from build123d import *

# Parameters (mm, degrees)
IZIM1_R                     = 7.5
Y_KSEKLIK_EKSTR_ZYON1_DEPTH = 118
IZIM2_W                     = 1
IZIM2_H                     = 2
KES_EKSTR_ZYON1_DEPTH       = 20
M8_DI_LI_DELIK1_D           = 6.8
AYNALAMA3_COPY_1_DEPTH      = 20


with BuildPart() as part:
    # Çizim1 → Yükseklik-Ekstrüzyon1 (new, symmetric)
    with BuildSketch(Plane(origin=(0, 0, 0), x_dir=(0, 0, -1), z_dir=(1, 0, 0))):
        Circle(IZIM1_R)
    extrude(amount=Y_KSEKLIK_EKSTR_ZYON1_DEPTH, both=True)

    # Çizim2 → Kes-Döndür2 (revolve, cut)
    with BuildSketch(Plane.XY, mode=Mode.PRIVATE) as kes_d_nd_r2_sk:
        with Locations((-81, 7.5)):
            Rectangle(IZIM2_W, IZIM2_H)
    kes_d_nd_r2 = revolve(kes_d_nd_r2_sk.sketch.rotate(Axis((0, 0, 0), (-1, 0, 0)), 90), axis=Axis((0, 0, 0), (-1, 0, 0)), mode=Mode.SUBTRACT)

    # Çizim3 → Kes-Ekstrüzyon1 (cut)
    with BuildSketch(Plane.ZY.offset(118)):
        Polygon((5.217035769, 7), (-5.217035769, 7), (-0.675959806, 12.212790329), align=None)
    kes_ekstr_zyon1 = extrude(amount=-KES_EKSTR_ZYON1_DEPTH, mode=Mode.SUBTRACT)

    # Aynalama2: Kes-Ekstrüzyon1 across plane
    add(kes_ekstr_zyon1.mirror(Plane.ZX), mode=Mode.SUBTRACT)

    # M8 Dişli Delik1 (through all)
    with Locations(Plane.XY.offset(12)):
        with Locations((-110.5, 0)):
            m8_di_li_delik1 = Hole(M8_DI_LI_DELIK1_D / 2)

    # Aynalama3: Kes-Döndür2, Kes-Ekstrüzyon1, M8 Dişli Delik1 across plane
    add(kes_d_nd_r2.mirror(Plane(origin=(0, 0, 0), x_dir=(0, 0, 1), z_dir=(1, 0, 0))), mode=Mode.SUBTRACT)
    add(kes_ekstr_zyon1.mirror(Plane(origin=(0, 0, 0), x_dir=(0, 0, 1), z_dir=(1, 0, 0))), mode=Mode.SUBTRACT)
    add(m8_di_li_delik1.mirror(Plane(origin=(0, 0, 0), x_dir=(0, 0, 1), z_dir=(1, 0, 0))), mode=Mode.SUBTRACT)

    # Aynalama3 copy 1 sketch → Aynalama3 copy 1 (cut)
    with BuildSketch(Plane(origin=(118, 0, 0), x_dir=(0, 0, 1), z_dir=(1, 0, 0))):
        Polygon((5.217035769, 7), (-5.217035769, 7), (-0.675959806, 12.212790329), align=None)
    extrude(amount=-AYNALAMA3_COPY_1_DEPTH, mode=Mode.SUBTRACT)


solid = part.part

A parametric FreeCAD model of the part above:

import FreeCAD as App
import Part
import Sketcher

V = App.Vector
Q = App.Units.Quantity

doc = App.newDocument("Part")
body = doc.addObject("PartDesign::Body", "Body")

# Sketch on YZ plane
sketch1 = body.newObject("Sketcher::SketchObject", "Sketch")
sketch1.AttachmentSupport = (doc.getObject("YZ_Plane"), [""])
sketch1.MapMode = "FlatFace"
sketch1.addGeometry(Part.Circle(V(0, 0, 0), V(0, 0, 1), 8), False)
sketch1.addConstraint([
    Sketcher.Constraint("Coincident", 0, 3, -1, 1),
    Sketcher.Constraint("Diameter", 0, Q("15 mm")),
])
pad1 = body.newObject("PartDesign::Pad", "Pad")
pad1.Profile = sketch1
pad1.Length = 236
pad1.Midplane = True

# Sketch on XY plane
sketch2 = body.newObject("Sketcher::SketchObject", "Sketch001")
sketch2.AttachmentSupport = (doc.getObject("XY_Plane"), [""])
sketch2.MapMode = "FlatFace"
sketch2.addGeometry([
    Part.LineSegment(V(-81.5, 8.5, 0), V(-81.5, 6.5, 0)),
    Part.LineSegment(V(-81.5, 6.5, 0), V(-80.5, 6.5, 0)),
    Part.LineSegment(V(-80.5, 6.5, 0), V(-80.5, 8.5, 0)),
    Part.LineSegment(V(-80.5, 8.5, 0), V(-81.5, 8.5, 0)),
], False)
sketch2.addConstraint([
    Sketcher.Constraint("Coincident", 0, 2, 1, 1),
    Sketcher.Constraint("Coincident", 1, 2, 2, 1),
    Sketcher.Constraint("Coincident", 2, 2, 3, 1),
    Sketcher.Constraint("Coincident", 3, 2, 0, 1),
    Sketcher.Constraint("Vertical", 0),
    Sketcher.Constraint("Horizontal", 1),
    Sketcher.Constraint("Vertical", 2),
    Sketcher.Constraint("Horizontal", 3),
    Sketcher.Constraint("DistanceX", 1, 1, 1, 2, Q("1 mm")),
    Sketcher.Constraint("DistanceY", 0, 2, 0, 1, Q("2 mm")),
    Sketcher.Constraint("DistanceX", 0, 2, -1, 1, Q("81.5 mm")),
    Sketcher.Constraint("DistanceY", -1, 1, 0, 2, Q("6.5 mm")),
])
groove = body.newObject("PartDesign::Groove", "Groove")
groove.Profile = sketch2
groove.ReferenceAxis = (sketch2, ["H_Axis"])
groove.Angle = 360

# Sketch on YZ plane
sketch3 = body.newObject("Sketcher::SketchObject", "Sketch002")
sketch3.AttachmentSupport = (doc.getObject("YZ_Plane"), [""])
sketch3.MapMode = "FlatFace"
sketch3.AttachmentOffset = App.Placement(V(0, 0, -118), App.Rotation())
sketch3.addGeometry([
    Part.LineSegment(V(7, -5, 0), V(7, 5, 0)),
    Part.LineSegment(V(7, 5, 0), V(12, -1, 0)),
    Part.LineSegment(V(12, -1, 0), V(7, -5, 0)),
], False)
sketch3.addConstraint([
    Sketcher.Constraint("Coincident", 0, 2, 1, 1),
    Sketcher.Constraint("Coincident", 1, 2, 2, 1),
    Sketcher.Constraint("Coincident", 2, 2, 0, 1),
    Sketcher.Constraint("Vertical", 0),
    Sketcher.Constraint("DistanceX", -1, 1, 0, 2, Q("7 mm")),
    Sketcher.Constraint("DistanceY", 0, 1, 0, 2, Q("10.434072 mm")),
    Sketcher.Constraint("Distance", 2, Q("6.913361 mm")),
    Sketcher.Constraint("DistanceX", -1, 1, 1, 2, Q("12.21279 mm")),
    Sketcher.Constraint("DistanceY", 1, 2, -1, 1, Q("0.67596 mm")),
])
pocket1 = body.newObject("PartDesign::Pocket", "Pocket")
pocket1.Profile = sketch3
pocket1.Length = 20
pocket1.Reversed = True
doc.recompute()

mirrored = body.newObject("PartDesign::Mirrored", "Mirrored")
mirrored.Originals = [pocket1]
mirrored.MirrorPlane = (doc.getObject("XZ_Plane"), [""])
body.Tip = mirrored

# Sketch on XY plane
sketch4 = body.newObject("Sketcher::SketchObject", "Sketch003")
sketch4.AttachmentSupport = (doc.getObject("XY_Plane"), [""])
sketch4.MapMode = "FlatFace"
sketch4.AttachmentOffset = App.Placement(V(0, 0, 12), App.Rotation())
sketch4.addGeometry(Part.Circle(V(-110.5, 0, 0), V(0, 0, 1), 3.4), False)
sketch4.addConstraint([
    Sketcher.Constraint("PointOnObject", 0, 3, -1),
    Sketcher.Constraint("Diameter", 0, Q("6.8 mm")),
    Sketcher.Constraint("DistanceX", 0, 3, -1, 1, Q("110.5 mm")),
])
doc.recompute()
hole = body.newObject("PartDesign::Hole", "Hole")
hole.Profile = sketch4
hole.ThreadType = "None"
hole.Diameter = 6.8
hole.DepthType = "ThroughAll"
doc.recompute()

mirrored2 = body.newObject("PartDesign::Mirrored", "Mirrored001")
mirrored2.Originals = [groove, pocket1, hole]
mirrored2.MirrorPlane = (doc.getObject("YZ_Plane"), [""])
body.Tip = mirrored2

# Sketch on YZ plane
sketch5 = body.newObject("Sketcher::SketchObject", "Sketch004")
sketch5.AttachmentSupport = (doc.getObject("YZ_Plane"), [""])
sketch5.MapMode = "FlatFace"
sketch5.AttachmentOffset = App.Placement(V(0, 0, 118), App.Rotation())
sketch5.addGeometry([
    Part.LineSegment(V(-7, -5, 0), V(-7, 5, 0)),
    Part.LineSegment(V(-7, 5, 0), V(-12, -1, 0)),
    Part.LineSegment(V(-12, -1, 0), V(-7, -5, 0)),
], False)
sketch5.addConstraint([
    Sketcher.Constraint("Coincident", 0, 2, 1, 1),
    Sketcher.Constraint("Coincident", 1, 2, 2, 1),
    Sketcher.Constraint("Coincident", 2, 2, 0, 1),
    Sketcher.Constraint("Vertical", 0),
    Sketcher.Constraint("DistanceX", 0, 2, -1, 1, Q("7 mm")),
    Sketcher.Constraint("DistanceY", 0, 1, 0, 2, Q("10.434072 mm")),
    Sketcher.Constraint("Distance", 2, Q("6.913361 mm")),
    Sketcher.Constraint("DistanceX", 1, 2, -1, 1, Q("12.21279 mm")),
    Sketcher.Constraint("DistanceY", 1, 2, -1, 1, Q("0.67596 mm")),
])
pocket2 = body.newObject("PartDesign::Pocket", "Pocket001")
pocket2.Profile = sketch5
pocket2.Length = 20

doc.recompute()
